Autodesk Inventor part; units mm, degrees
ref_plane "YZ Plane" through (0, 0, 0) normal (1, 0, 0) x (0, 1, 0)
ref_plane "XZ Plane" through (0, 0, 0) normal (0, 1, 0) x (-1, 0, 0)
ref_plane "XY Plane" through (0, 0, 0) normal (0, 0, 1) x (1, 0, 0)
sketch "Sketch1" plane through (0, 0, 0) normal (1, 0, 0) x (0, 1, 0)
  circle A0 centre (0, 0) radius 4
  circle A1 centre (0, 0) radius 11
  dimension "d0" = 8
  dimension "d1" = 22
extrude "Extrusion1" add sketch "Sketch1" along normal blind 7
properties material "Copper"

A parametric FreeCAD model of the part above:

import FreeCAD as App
import Part
import Sketcher
from FreeCAD import Vector
Q = App.Units.Quantity

doc = App.newDocument("Part")
params = doc.addObject("Spreadsheet::Sheet", "Params")
for row, (alias, value) in enumerate([
    ("sketch1_diameter", "22 mm"),
    ("sketch1_diameter2", "8 mm"),
    ("pad1_length", "7 mm"),
], start=1):
    params.set(f"A{row}", alias)
    params.set(f"B{row}", "=" + value)
    params.setAlias(f"B{row}", alias)

body = doc.addObject("PartDesign::Body", "Body")

sketch1 = doc.addObject("Sketcher::SketchObject", "Sketch")
body.addObject(sketch1)
sketch1.AttachmentSupport = (doc.YZ_Plane, [""])
sketch1.MapMode = "FlatFace"
sketch1.addGeometry([
    Part.Circle(Vector(0, 0, 0), Vector(0, 0, 1), 11),
    Part.Circle(Vector(0, 0, 0), Vector(0, 0, 1), 4),
], False)
sketch1.addConstraint([
    Sketcher.Constraint("Coincident", 0, 3, -1, 1),
    Sketcher.Constraint("Coincident", 1, 3, -1, 1),
    Sketcher.Constraint("Diameter", 0, Q("22 mm")),
    Sketcher.Constraint("Diameter", 1, Q("8 mm")),
])
sketch1.setExpression("Constraints[2]", "Params.sketch1_diameter")
sketch1.setExpression("Constraints[3]", "Params.sketch1_diameter2")
pad1 = doc.addObject("PartDesign::Pad", "Pad")
body.addObject(pad1)
pad1.Profile = sketch1
pad1.setExpression("Length", "Params.pad1_length")

doc.recompute()
